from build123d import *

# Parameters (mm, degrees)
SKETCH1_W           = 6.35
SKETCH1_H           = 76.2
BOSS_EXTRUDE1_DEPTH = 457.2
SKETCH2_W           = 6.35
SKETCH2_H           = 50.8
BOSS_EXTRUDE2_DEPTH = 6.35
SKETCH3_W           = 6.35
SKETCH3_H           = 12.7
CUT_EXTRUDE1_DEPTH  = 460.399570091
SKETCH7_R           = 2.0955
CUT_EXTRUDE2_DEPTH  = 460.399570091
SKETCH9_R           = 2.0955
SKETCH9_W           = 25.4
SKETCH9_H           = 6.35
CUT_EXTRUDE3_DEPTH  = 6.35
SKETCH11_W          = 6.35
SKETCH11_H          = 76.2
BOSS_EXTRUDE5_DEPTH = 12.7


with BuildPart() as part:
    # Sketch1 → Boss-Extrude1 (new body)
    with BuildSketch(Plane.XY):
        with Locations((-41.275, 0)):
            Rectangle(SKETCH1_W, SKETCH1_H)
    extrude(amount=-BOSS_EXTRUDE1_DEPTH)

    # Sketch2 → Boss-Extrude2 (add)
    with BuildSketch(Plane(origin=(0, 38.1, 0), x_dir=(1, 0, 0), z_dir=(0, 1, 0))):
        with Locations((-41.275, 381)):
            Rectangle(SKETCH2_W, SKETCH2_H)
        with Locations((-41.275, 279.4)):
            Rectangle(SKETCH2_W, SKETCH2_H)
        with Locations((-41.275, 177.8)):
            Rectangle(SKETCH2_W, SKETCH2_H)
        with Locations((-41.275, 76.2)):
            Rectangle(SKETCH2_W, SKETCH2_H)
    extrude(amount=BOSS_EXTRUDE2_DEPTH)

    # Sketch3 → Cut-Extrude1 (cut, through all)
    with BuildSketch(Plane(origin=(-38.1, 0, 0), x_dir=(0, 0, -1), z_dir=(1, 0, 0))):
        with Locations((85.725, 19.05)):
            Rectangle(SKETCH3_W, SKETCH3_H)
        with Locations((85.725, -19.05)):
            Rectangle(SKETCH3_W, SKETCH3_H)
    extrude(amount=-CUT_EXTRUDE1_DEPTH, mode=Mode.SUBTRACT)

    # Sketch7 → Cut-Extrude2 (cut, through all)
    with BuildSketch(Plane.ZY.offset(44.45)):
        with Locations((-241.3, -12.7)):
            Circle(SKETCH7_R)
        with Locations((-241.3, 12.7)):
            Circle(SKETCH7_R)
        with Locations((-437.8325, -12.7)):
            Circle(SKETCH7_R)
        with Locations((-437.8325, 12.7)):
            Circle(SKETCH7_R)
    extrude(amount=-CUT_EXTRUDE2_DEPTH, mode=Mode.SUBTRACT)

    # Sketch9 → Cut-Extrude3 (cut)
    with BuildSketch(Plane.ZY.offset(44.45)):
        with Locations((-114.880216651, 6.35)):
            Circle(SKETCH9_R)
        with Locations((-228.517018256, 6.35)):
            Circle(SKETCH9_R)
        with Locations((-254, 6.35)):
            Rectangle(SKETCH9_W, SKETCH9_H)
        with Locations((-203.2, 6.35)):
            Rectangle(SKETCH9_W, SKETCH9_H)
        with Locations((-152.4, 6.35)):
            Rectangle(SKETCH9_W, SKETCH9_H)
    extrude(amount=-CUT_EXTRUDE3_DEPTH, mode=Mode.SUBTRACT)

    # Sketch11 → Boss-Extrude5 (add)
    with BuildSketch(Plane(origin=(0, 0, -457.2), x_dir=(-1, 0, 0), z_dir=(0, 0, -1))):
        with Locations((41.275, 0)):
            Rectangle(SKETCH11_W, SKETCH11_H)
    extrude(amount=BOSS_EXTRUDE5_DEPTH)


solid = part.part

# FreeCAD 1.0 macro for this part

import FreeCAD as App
import Part
import Sketcher

V = App.Vector
Q = App.Units.Quantity


def add_polygon(sketch, points):
    """Adds a closed chain of lines whose ends are joined by coincident constraints."""
    first, n = sketch.GeometryCount, len(points)
    for a, b in zip(points, points[1:] + points[:1]):
        sketch.addGeometry(Part.LineSegment(App.Vector(*a, 0), App.Vector(*b, 0)), False)
    for i in range(n):
        sketch.addConstraint(Sketcher.Constraint("Coincident", first + i, 2, first + (i + 1) % n, 1))

doc = App.newDocument("Part")
params = doc.addObject("Spreadsheet::Sheet", "Params")
for row, (alias, value) in enumerate([
    ("sketch1_height", "3 in"),
    ("sketch1_width", "0.25 in"),
    ("pad1_length", "18 in"),
    ("sketch2_height", "2 in"),
    ("sketch2_width", "0.25 in"),
    ("pad2_length", "0.25 in"),
    ("sketch3_width", "0.5 in"),
    ("sketch3_height", "0.25 in"),
    ("sketch4_diameter", "0.165 in"),
    ("sketch5_height", "1 in"),
    ("sketch5_diameter", "0.165 in"),
    ("sketch5_width", "0.25 in"),
    ("pocket3_length", "0.25 in"),
    ("sketch6_height", "3 in"),
    ("sketch6_width", "0.25 in"),
    ("pad3_length", "0.5 in"),
], start=1):
    params.set(f"A{row}", alias)
    params.set(f"B{row}", "=" + value)
    params.setAlias(f"B{row}", alias)

body = doc.addObject("PartDesign::Body", "Body")

# Sketch on XY plane
sketch1 = body.newObject("Sketcher::SketchObject", "Sketch")
sketch1.AttachmentSupport = (doc.getObject("XY_Plane"), [""])
sketch1.MapMode = "FlatFace"
add_polygon(sketch1, [(-44, 38), (-44, -38), (-38, -38), (-38, 38)])  # lines 0-3
sketch1.addConstraint([
    Sketcher.Constraint("Vertical", 0),
    Sketcher.Constraint("Horizontal", 1),
    Sketcher.Constraint("Vertical", 2),
    Sketcher.Constraint("Horizontal", 3),
    Sketcher.Constraint("DistanceY", 0, 2, 0, 1, Q("3 in")),
    Sketcher.Constraint("DistanceX", 1, 1, 1, 2, Q("0.25 in")),
    Sketcher.Constraint("DistanceY", 0, 2, -1, 1, Q("1.5 in")),
    Sketcher.Constraint("DistanceX", 1, 2, -1, 1, Q("1.5 in")),
])
sketch1.setExpression("Constraints[8]", "Params.sketch1_height")
sketch1.setExpression("Constraints[9]", "Params.sketch1_width")
pad1 = body.newObject("PartDesign::Pad", "Pad")
pad1.Profile = sketch1
pad1.setExpression("Length", "Params.pad1_length")
pad1.Reversed = True

# Sketch on XZ plane
sketch2 = body.newObject("Sketcher::SketchObject", "Sketch001")
sketch2.AttachmentSupport = (doc.getObject("XZ_Plane"), [""])
sketch2.MapMode = "FlatFace"
sketch2.AttachmentOffset = App.Placement(V(0, 0, -1.5 * 25.4), App.Rotation())
add_polygon(sketch2, [(-44, -406), (-44, -356), (-38, -356), (-38, -406)])  # lines 0-3
add_polygon(sketch2, [(-44, -305), (-44, -254), (-38, -254), (-38, -305)])  # lines 4-7
add_polygon(sketch2, [(-44, -203), (-44, -152), (-38, -152), (-38, -203)])  # lines 8-11
add_polygon(sketch2, [(-44, -102), (-44, -51), (-38, -51), (-38, -102)])  # lines 12-15
sketch2.addConstraint([
    Sketcher.Constraint("Vertical", 0),
    Sketcher.Constraint("Horizontal", 1),
    Sketcher.Constraint("Vertical", 2),
    Sketcher.Constraint("Horizontal", 3),
    Sketcher.Constraint("Vertical", 4),
    Sketcher.Constraint("Horizontal", 5),
    Sketcher.Constraint("Vertical", 6),
    Sketcher.Constraint("Horizontal", 7),
    Sketcher.Constraint("Vertical", 8),
    Sketcher.Constraint("Horizontal", 9),
    Sketcher.Constraint("Vertical", 10),
    Sketcher.Constraint("Horizontal", 11),
    Sketcher.Constraint("Vertical", 12),
    Sketcher.Constraint("Horizontal", 13),
    Sketcher.Constraint("Vertical", 14),
    Sketcher.Constraint("Horizontal", 15),
    Sketcher.Constraint("Vertical", 3, 2, 4, 2),
    Sketcher.Constraint("Vertical", 2, 2, 5, 2),
    Sketcher.Constraint("Vertical", 7, 2, 8, 2),
    Sketcher.Constraint("Vertical", 6, 2, 9, 2),
    Sketcher.Constraint("Vertical", 11, 2, 12, 2),
    Sketcher.Constraint("Vertical", 10, 2, 13, 2),
    Sketcher.Constraint("Equal", 2, 4),
    Sketcher.Constraint("Equal", 6, 8),
    Sketcher.Constraint("Equal", 10, 12),
    Sketcher.Constraint("DistanceY", 0, 1, 0, 2, Q("2 in")),
    Sketcher.Constraint("DistanceY", 0, 2, -1, 1, Q("14 in")),
    Sketcher.Constraint("DistanceY", 4, 2, -1, 1, Q("10 in")),
    Sketcher.Constraint("DistanceY", 8, 2, -1, 1, Q("6 in")),
    Sketcher.Constraint("DistanceY", 12, 2, -1, 1, Q("2 in")),
    Sketcher.Constraint("DistanceX", 1, 1, 1, 2, Q("0.25 in")),
    Sketcher.Constraint("DistanceX", 1, 2, -1, 1, Q("1.5 in")),
])
sketch2.setExpression("Constraints[41]", "Params.sketch2_height")
sketch2.setExpression("Constraints[46]", "Params.sketch2_width")
pad2 = body.newObject("PartDesign::Pad", "Pad001")
pad2.Profile = sketch2
pad2.setExpression("Length", "Params.pad2_length")
pad2.Reversed = True

# Sketch on YZ plane
sketch3 = body.newObject("Sketcher::SketchObject", "Sketch002")
sketch3.AttachmentSupport = (doc.getObject("YZ_Plane"), [""])
sketch3.MapMode = "FlatFace"
sketch3.AttachmentOffset = App.Placement(V(0, 0, -1.5 * 25.4), App.Rotation())
add_polygon(sketch3, [(25, -83), (13, -83), (13, -89), (25, -89)])  # lines 0-3
add_polygon(sketch3, [(-13, -83), (-25, -83), (-25, -89), (-13, -89)])  # lines 4-7
sketch3.addConstraint([
    Sketcher.Constraint("Horizontal", 0),
    Sketcher.Constraint("Vertical", 1),
    Sketcher.Constraint("Horizontal", 2),
    Sketcher.Constraint("Vertical", 3),
    Sketcher.Constraint("Horizontal", 4),
    Sketcher.Constraint("Vertical", 5),
    Sketcher.Constraint("Horizontal", 6),
    Sketcher.Constraint("Vertical", 7),
    Sketcher.Constraint("Symmetric", 3, 2, 4, 2, -2),
    Sketcher.Constraint("Symmetric", 1, 2, 6, 2, -2),
    Sketcher.Constraint("DistanceX", 0, 2, 0, 1, Q("0.5 in")),
    Sketcher.Constraint("DistanceX", -1, 1, 2, 2, Q("1 in")),
    Sketcher.Constraint("DistanceY", 1, 2, 1, 1, Q("0.25 in")),
    Sketcher.Constraint("DistanceY", 1, 2, -1, 1, Q("3.5 in")),
])
sketch3.setExpression("Constraints[18]", "Params.sketch3_width")
sketch3.setExpression("Constraints[20]", "Params.sketch3_height")
pocket1 = body.newObject("PartDesign::Pocket", "Pocket")
pocket1.Profile = sketch3
pocket1.Type = "ThroughAll"

# Sketch on YZ plane
sketch4 = body.newObject("Sketcher::SketchObject", "Sketch003")
sketch4.AttachmentSupport = (doc.getObject("YZ_Plane"), [""])
sketch4.MapMode = "FlatFace"
sketch4.AttachmentOffset = App.Placement(V(0, 0, -1.75 * 25.4), App.Rotation())
sketch4.addGeometry([
    Part.Circle(V(-12.7, -241.3, 0), V(0, 0, 1), 2.1),
    Part.Circle(V(12.7, -241.3, 0), V(0, 0, 1), 2.1),
    Part.Circle(V(-12.7, -437.8, 0), V(0, 0, 1), 2.1),
    Part.Circle(V(12.7, -437.8, 0), V(0, 0, 1), 2.1),
], False)
sketch4.addConstraint([
    Sketcher.Constraint("Equal", 0, 1),
    Sketcher.Constraint("Equal", 1, 2),
    Sketcher.Constraint("Equal", 2, 3),
    Sketcher.Constraint("Symmetric", 0, 3, 1, 3, -2),
    Sketcher.Constraint("Symmetric", 2, 3, 3, 3, -2),
    Sketcher.Constraint("Vertical", 0, 3, 2, 3),
    Sketcher.Constraint("Diameter", 0, Q("0.165 in")),
    Sketcher.Constraint("DistanceX", 0, 3, 1, 3, Q("1 in")),
    Sketcher.Constraint("DistanceY", 0, 3, -1, 1, Q("9.5 in")),
    Sketcher.Constraint("DistanceY", 2, 3, -1, 1, Q("17.2375 in")),
])
sketch4.setExpression("Constraints[6]", "Params.sketch4_diameter")
pocket2 = body.newObject("PartDesign::Pocket", "Pocket001")
pocket2.Profile = sketch4
pocket2.Type = "ThroughAll"
pocket2.Reversed = True

# Sketch on YZ plane
sketch5 = body.newObject("Sketcher::SketchObject", "Sketch004")
sketch5.AttachmentSupport = (doc.getObject("YZ_Plane"), [""])
sketch5.MapMode = "FlatFace"
sketch5.AttachmentOffset = App.Placement(V(0, 0, -1.75 * 25.4), App.Rotation())
sketch5.addGeometry(Part.Circle(V(6.3, -114.9, 0), V(0, 0, 1), 2.1), False)  # 0
sketch5.addGeometry(Part.Circle(V(6.3, -228.5, 0), V(0, 0, 1), 2.1), False)  # 1
add_polygon(sketch5, [(9.5, -266.7), (3.2, -266.7), (3.2, -241.3), (9.5, -241.3)])  # lines 2-5
add_polygon(sketch5, [(9.5, -215.9), (3.2, -215.9), (3.2, -190.5), (9.5, -190.5)])  # lines 6-9
add_polygon(sketch5, [(9.5, -165.1), (3.2, -165.1), (3.2, -139.7), (9.5, -139.7)])  # lines 10-13
sketch5.addConstraint([
    Sketcher.Constraint("Horizontal", 2),
    Sketcher.Constraint("Vertical", 3),
    Sketcher.Constraint("Horizontal", 4),
    Sketcher.Constraint("Vertical", 5),
    Sketcher.Constraint("Horizontal", 6),
    Sketcher.Constraint("Vertical", 7),
    Sketcher.Constraint("Horizontal", 8),
    Sketcher.Constraint("Vertical", 9),
    Sketcher.Constraint("Horizontal", 10),
    Sketcher.Constraint("Vertical", 11),
    Sketcher.Constraint("Horizontal", 12),
    Sketcher.Constraint("Vertical", 13),
    Sketcher.Constraint("Equal", 0, 1),
    Sketcher.Constraint("Vertical", 0, 3, 1, 3),
    Sketcher.Constraint("Vertical", 3, 2, 6, 2),
    Sketcher.Constraint("Vertical", 5, 2, 8, 2),
    Sketcher.Constraint("Vertical", 7, 2, 10, 2),
    Sketcher.Constraint("Vertical", 9, 2, 12, 2),
    Sketcher.Constraint("Equal", 5, 7),
    Sketcher.Constraint("Equal", 9, 11),
    Sketcher.Constraint("DistanceY", 3, 1, 3, 2, Q("1 in")),
    Sketcher.Constraint("Diameter", 0, Q("0.165 in")),
    Sketcher.Constraint("DistanceY", 3, 2, 6, 2, Q("1 in")),
    Sketcher.Constraint("DistanceY", 7, 2, 10, 2, Q("1 in")),
    Sketcher.Constraint("DistanceX", 2, 2, 2, 1, Q("0.25 in")),
    Sketcher.Constraint("DistanceY", 2, 2, -1, 1, Q("10.5 in")),
    Sketcher.Constraint("DistanceX", -1, 1, 0, 3, Q("0.25 in")),
    Sketcher.Constraint("DistanceX", -1, 1, 2, 2, Q("0.125 in")),
    Sketcher.Constraint("DistanceY", 1, 3, 0, 3, Q("113.636802 mm")),
    Sketcher.Constraint("DistanceY", 1, 3, -1, 1, Q("228.517018 mm")),
])
sketch5.setExpression("Constraints[32]", "Params.sketch5_height")
sketch5.setExpression("Constraints[33]", "Params.sketch5_diameter")
sketch5.setExpression("Constraints[36]", "Params.sketch5_width")
pocket3 = body.newObject("PartDesign::Pocket", "Pocket002")
pocket3.Profile = sketch5
pocket3.setExpression("Length", "Params.pocket3_length")
pocket3.Reversed = True

# Sketch on XY plane
sketch6 = body.newObject("Sketcher::SketchObject", "Sketch005")
sketch6.AttachmentSupport = (doc.getObject("XY_Plane"), [""])
sketch6.MapMode = "FlatFace"
sketch6.AttachmentOffset = App.Placement(V(0, 0, -18 * 25.4), App.Rotation())
add_polygon(sketch6, [(-38, 38), (-38, -38), (-44, -38), (-44, 38)])  # lines 0-3
sketch6.addConstraint([
    Sketcher.Constraint("Vertical", 0),
    Sketcher.Constraint("Horizontal", 1),
    Sketcher.Constraint("Vertical", 2),
    Sketcher.Constraint("Horizontal", 3),
    Sketcher.Constraint("DistanceY", 0, 2, 0, 1, Q("3 in")),
    Sketcher.Constraint("DistanceX", 1, 2, 1, 1, Q("0.25 in")),
    Sketcher.Constraint("DistanceX", 0, 2, -1, 1, Q("1.5 in")),
    Sketcher.Constraint("DistanceY", 0, 2, -1, 1, Q("1.5 in")),
])
sketch6.setExpression("Constraints[8]", "Params.sketch6_height")
sketch6.setExpression("Constraints[9]", "Params.sketch6_width")
pad3 = body.newObject("PartDesign::Pad", "Pad002")
pad3.Profile = sketch6
pad3.setExpression("Length", "Params.pad3_length")
pad3.Reversed = True

doc.recompute()
